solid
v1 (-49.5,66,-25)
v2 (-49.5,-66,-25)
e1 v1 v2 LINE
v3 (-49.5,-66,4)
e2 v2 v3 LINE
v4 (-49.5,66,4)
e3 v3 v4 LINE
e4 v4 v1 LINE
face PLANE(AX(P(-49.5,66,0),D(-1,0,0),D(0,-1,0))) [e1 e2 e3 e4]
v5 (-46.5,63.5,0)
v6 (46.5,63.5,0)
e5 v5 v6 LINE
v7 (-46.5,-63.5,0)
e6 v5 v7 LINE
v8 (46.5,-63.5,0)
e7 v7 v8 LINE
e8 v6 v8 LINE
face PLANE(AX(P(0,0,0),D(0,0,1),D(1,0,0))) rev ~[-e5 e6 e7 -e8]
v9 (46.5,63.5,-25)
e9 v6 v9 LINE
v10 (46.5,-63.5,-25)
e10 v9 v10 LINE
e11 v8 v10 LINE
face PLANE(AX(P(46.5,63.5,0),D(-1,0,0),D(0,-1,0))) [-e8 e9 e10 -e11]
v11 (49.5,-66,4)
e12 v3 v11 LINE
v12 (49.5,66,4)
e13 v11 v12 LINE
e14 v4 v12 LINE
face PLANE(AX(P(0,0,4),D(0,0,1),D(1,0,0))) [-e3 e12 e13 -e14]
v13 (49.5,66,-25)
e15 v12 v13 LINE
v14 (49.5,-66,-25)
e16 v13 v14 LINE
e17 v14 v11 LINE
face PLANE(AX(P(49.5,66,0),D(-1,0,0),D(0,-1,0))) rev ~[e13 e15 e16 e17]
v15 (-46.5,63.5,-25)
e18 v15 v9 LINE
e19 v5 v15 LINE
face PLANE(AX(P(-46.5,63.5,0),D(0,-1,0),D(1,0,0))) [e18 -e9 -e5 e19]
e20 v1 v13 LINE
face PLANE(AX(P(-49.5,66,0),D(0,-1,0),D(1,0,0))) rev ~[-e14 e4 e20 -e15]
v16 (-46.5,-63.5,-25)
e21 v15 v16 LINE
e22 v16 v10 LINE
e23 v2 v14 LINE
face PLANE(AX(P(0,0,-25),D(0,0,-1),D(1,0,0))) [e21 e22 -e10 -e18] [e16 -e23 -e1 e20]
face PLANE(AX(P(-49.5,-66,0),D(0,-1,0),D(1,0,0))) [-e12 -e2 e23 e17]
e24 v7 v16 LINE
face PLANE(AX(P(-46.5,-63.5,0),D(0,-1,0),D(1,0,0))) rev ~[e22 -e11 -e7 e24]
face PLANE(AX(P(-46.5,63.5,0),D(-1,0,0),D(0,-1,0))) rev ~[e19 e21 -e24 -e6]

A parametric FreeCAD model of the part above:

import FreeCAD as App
import Part
import Sketcher
Q = App.Units.Quantity

doc = App.newDocument("Part")
body = doc.addObject("PartDesign::Body", "Body")

sketch1 = body.newObject("Sketcher::SketchObject", "Sketch")
sketch1.AttachmentSupport = (doc.getObject("XY_Plane"), [""])
sketch1.MapMode = "FlatFace"
sketch1.addGeometry([
    Part.LineSegment(App.Vector(-50, 66, 0), App.Vector(-50, -66, 0)),
    Part.LineSegment(App.Vector(-50, -66, 0), App.Vector(50, -66, 0)),
    Part.LineSegment(App.Vector(50, -66, 0), App.Vector(50, 66, 0)),
    Part.LineSegment(App.Vector(50, 66, 0), App.Vector(-50, 66, 0)),
], False)
sketch1.addConstraint([
    Sketcher.Constraint("Coincident", 0, 2, 1, 1),
    Sketcher.Constraint("Coincident", 1, 2, 2, 1),
    Sketcher.Constraint("Coincident", 2, 2, 3, 1),
    Sketcher.Constraint("Coincident", 3, 2, 0, 1),
    Sketcher.Constraint("Vertical", 0),
    Sketcher.Constraint("Horizontal", 1),
    Sketcher.Constraint("Vertical", 2),
    Sketcher.Constraint("Horizontal", 3),
    Sketcher.Constraint("Symmetric", 0, 2, 2, 2, -1, 1),
    Sketcher.Constraint("DistanceX", 1, 1, 1, 2, Q("99 mm")),
    Sketcher.Constraint("DistanceY", 0, 2, 0, 1, Q("132 mm")),
])
pad1 = body.newObject("PartDesign::Pad", "Pad")
pad1.Profile = sketch1
pad1.Length = 4

sketch2 = body.newObject("Sketcher::SketchObject", "Sketch001")
sketch2.AttachmentSupport = (doc.getObject("XY_Plane"), [""])
sketch2.MapMode = "FlatFace"
sketch2.addGeometry([
    Part.LineSegment(App.Vector(-50, -66, 0), App.Vector(-50, 66, 0)),
    Part.LineSegment(App.Vector(-50, 66, 0), App.Vector(50, 66, 0)),
    Part.LineSegment(App.Vector(50, 66, 0), App.Vector(50, -66, 0)),
    Part.LineSegment(App.Vector(50, -66, 0), App.Vector(-50, -66, 0)),
    Part.LineSegment(App.Vector(46, 64, 0), App.Vector(-46, 64, 0)),
    Part.LineSegment(App.Vector(-46, 64, 0), App.Vector(-46, -64, 0)),
    Part.LineSegment(App.Vector(-46, -64, 0), App.Vector(46, -64, 0)),
    Part.LineSegment(App.Vector(46, -64, 0), App.Vector(46, 64, 0)),
], False)
sketch2.addConstraint([
    Sketcher.Constraint("Coincident", 0, 2, 1, 1),
    Sketcher.Constraint("Coincident", 1, 2, 2, 1),
    Sketcher.Constraint("Coincident", 2, 2, 3, 1),
    Sketcher.Constraint("Coincident", 3, 2, 0, 1),
    Sketcher.Constraint("Coincident", 4, 2, 5, 1),
    Sketcher.Constraint("Coincident", 5, 2, 6, 1),
    Sketcher.Constraint("Coincident", 6, 2, 7, 1),
    Sketcher.Constraint("Coincident", 7, 2, 4, 1),
    Sketcher.Constraint("Vertical", 0),
    Sketcher.Constraint("Horizontal", 1),
    Sketcher.Constraint("Vertical", 2),
    Sketcher.Constraint("Horizontal", 3),
    Sketcher.Constraint("Horizontal", 4),
    Sketcher.Constraint("Vertical", 5),
    Sketcher.Constraint("Horizontal", 6),
    Sketcher.Constraint("Vertical", 7),
    Sketcher.Constraint("Symmetric", 0, 2, 2, 2, -1, 1),
    Sketcher.Constraint("Symmetric", 4, 2, 6, 2, -1, 1),
    Sketcher.Constraint("DistanceX", 1, 1, 1, 2, Q("99 mm")),
    Sketcher.Constraint("DistanceX", 4, 2, 4, 1, Q("93 mm")),
    Sketcher.Constraint("DistanceY", 0, 1, 0, 2, Q("132 mm")),
    Sketcher.Constraint("DistanceY", 5, 2, 5, 1, Q("127 mm")),
])
pad2 = body.newObject("PartDesign::Pad", "Pad001")
pad2.Profile = sketch2
pad2.Length = 25
pad2.Reversed = True

doc.recompute()
